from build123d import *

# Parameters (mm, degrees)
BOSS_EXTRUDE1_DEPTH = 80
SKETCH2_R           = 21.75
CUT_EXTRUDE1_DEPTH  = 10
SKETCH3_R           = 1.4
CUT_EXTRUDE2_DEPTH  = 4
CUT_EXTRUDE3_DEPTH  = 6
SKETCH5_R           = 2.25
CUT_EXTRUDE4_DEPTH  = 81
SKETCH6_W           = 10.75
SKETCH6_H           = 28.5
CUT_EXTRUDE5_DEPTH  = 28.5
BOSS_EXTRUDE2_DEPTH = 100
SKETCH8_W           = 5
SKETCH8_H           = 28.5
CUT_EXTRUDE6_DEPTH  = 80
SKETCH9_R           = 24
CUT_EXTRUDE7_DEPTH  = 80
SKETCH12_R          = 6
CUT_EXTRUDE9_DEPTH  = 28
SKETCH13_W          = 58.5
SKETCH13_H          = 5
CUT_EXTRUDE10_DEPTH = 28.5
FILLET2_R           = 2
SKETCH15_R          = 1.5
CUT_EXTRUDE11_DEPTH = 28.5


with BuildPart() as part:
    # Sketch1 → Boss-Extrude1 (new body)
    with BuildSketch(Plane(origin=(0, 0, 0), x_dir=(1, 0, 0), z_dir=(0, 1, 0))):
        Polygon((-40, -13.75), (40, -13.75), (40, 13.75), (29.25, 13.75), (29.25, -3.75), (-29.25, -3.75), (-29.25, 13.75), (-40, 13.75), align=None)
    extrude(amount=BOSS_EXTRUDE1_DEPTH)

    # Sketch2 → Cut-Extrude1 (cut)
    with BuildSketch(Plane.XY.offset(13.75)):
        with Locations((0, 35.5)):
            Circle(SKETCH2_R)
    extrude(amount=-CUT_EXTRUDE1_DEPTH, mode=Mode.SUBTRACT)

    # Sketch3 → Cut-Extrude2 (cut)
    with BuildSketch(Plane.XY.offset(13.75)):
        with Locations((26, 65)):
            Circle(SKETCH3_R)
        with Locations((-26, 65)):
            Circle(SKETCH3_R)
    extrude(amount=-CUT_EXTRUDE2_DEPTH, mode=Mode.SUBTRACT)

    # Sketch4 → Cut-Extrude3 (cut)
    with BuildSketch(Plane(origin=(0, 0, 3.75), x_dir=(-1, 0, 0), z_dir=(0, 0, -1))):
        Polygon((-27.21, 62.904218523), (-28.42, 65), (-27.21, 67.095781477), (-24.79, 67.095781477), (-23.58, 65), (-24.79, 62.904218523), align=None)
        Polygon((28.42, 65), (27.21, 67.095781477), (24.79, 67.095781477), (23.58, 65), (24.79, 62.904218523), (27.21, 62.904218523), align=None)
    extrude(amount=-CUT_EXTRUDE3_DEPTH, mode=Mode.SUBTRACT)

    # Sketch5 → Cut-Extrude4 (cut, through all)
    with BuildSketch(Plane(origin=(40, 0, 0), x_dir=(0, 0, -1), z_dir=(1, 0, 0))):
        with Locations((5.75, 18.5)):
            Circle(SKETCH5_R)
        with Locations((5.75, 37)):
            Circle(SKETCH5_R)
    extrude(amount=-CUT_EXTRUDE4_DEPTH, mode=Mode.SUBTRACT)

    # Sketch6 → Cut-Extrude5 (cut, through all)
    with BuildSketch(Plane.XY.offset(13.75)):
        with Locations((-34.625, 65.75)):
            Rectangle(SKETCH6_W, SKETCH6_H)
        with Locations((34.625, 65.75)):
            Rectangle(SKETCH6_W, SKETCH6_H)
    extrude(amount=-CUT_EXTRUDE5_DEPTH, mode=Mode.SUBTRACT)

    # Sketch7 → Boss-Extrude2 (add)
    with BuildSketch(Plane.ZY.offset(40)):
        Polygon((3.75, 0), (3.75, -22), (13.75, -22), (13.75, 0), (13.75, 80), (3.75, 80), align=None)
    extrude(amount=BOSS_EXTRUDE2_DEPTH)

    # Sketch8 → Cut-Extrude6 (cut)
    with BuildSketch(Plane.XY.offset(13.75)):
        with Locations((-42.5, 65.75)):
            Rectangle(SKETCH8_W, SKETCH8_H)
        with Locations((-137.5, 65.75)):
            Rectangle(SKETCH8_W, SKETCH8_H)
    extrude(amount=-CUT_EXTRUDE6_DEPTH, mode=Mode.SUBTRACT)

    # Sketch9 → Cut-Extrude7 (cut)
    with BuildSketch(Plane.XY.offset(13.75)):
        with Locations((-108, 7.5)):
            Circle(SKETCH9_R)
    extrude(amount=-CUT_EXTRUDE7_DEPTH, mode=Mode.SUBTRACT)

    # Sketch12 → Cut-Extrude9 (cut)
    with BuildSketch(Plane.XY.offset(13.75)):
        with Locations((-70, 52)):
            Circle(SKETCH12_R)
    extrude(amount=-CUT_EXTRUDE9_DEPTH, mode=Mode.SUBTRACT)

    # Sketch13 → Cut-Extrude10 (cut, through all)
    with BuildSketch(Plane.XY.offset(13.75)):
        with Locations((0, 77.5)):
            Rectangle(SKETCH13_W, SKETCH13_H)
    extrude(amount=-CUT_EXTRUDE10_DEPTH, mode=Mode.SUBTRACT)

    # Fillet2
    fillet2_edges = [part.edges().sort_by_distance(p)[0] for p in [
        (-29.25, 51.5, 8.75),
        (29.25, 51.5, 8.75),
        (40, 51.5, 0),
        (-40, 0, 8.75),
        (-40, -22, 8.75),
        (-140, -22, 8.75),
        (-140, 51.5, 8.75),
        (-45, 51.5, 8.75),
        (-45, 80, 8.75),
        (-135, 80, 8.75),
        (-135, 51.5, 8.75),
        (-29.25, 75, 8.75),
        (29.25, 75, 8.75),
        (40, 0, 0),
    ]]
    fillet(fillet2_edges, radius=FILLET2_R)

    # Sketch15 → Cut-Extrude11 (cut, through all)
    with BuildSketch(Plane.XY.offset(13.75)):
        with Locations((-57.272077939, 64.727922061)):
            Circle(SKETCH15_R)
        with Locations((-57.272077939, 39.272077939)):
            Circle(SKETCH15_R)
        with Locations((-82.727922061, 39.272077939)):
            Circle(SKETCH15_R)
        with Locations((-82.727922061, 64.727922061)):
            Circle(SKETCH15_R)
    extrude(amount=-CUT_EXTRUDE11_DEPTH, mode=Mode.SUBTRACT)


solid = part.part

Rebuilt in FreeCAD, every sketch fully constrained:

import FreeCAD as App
import Part
import Sketcher
from FreeCAD import Vector
Q = App.Units.Quantity


def edges_at(feature, points):
    """Names of the edges that pass closest to the given points."""
    edges = feature.Shape.Edges
    near = lambda p: min(range(len(edges)), key=lambda i: edges[i].distToShape(Part.Vertex(*p))[0])
    return sorted({f"Edge{near(p) + 1}" for p in points})

doc = App.newDocument("Part")
body = doc.addObject("PartDesign::Body", "Body")

# Sketch on XZ plane
sketch1 = doc.addObject("Sketcher::SketchObject", "Sketch")
body.addObject(sketch1)
sketch1.AttachmentSupport = (doc.XZ_Plane, [""])
sketch1.MapMode = "FlatFace"
sketch1.addGeometry(Part.LineSegment(Vector(-40, 13.75, 0), Vector(40, 13.75, 0)), False)
sketch1.addGeometry(Part.LineSegment(Vector(40, 13.75, 0), Vector(40, -13.75, 0)), False)
sketch1.addGeometry(Part.LineSegment(Vector(40, -13.75, 0), Vector(29.25, -13.75, 0)), False)
sketch1.addGeometry(Part.LineSegment(Vector(29.25, -13.75, 0), Vector(29.25, 3.75, 0)), False)
sketch1.addGeometry(Part.LineSegment(Vector(29.25, 3.75, 0), Vector(-29.25, 3.75, 0)), False)
sketch1.addGeometry(Part.LineSegment(Vector(-29.25, 3.75, 0), Vector(-29.25, -13.75, 0)), False)
sketch1.addGeometry(Part.LineSegment(Vector(-29.25, -13.75, 0), Vector(-40, -13.75, 0)), False)
sketch1.addGeometry(Part.LineSegment(Vector(-40, -13.75, 0), Vector(-40, 13.75, 0)), False)
sketch1.addConstraint(Sketcher.Constraint("Coincident", 0, 2, 1, 1))
sketch1.addConstraint(Sketcher.Constraint("Coincident", 1, 2, 2, 1))
sketch1.addConstraint(Sketcher.Constraint("Coincident", 2, 2, 3, 1))
sketch1.addConstraint(Sketcher.Constraint("Coincident", 3, 2, 4, 1))
sketch1.addConstraint(Sketcher.Constraint("Coincident", 4, 2, 5, 1))
sketch1.addConstraint(Sketcher.Constraint("Coincident", 5, 2, 6, 1))
sketch1.addConstraint(Sketcher.Constraint("Coincident", 6, 2, 7, 1))
sketch1.addConstraint(Sketcher.Constraint("Coincident", 7, 2, 0, 1))
sketch1.addConstraint(Sketcher.Constraint("Horizontal", 0))
sketch1.addConstraint(Sketcher.Constraint("Vertical", 1))
sketch1.addConstraint(Sketcher.Constraint("Horizontal", 2))
sketch1.addConstraint(Sketcher.Constraint("Vertical", 3))
sketch1.addConstraint(Sketcher.Constraint("Horizontal", 4))
sketch1.addConstraint(Sketcher.Constraint("Vertical", 5))
sketch1.addConstraint(Sketcher.Constraint("Horizontal", 6))
sketch1.addConstraint(Sketcher.Constraint("Vertical", 7))
sketch1.addConstraint(Sketcher.Constraint("Symmetric", 0, 2, 6, 2, -1, 1))
sketch1.addConstraint(Sketcher.Constraint("Symmetric", 2, 2, 5, 2, -2))
sketch1.addConstraint(Sketcher.Constraint("DistanceX", 0, 1, 0, 2, Q("80 mm")))
sketch1.addConstraint(Sketcher.Constraint("DistanceX", 4, 2, 4, 1, Q("58.5 mm")))
sketch1.addConstraint(Sketcher.Constraint("DistanceY", 1, 2, 1, 1, Q("27.5 mm")))
sketch1.addConstraint(Sketcher.Constraint("DistanceY", 3, 1, 3, 2, Q("17.5 mm")))
pad1 = doc.addObject("PartDesign::Pad", "Pad")
body.addObject(pad1)
pad1.Profile = sketch1
pad1.Length = 80
pad1.Reversed = True

# Sketch on XY plane
sketch2 = doc.addObject("Sketcher::SketchObject", "Sketch001")
body.addObject(sketch2)
sketch2.AttachmentSupport = (doc.XY_Plane, [""])
sketch2.MapMode = "FlatFace"
sketch2.AttachmentOffset = App.Placement(Vector(0, 0, 13.75), App.Rotation())
sketch2.addGeometry(Part.Circle(Vector(0, 35.5, 0), Vector(0, 0, 1), 21.75), False)
sketch2.addConstraint(Sketcher.Constraint("PointOnObject", 0, 3, -2))
sketch2.addConstraint(Sketcher.Constraint("Diameter", 0, Q("43.5 mm")))
sketch2.addConstraint(Sketcher.Constraint("DistanceY", -1, 1, 0, 3, Q("35.5 mm")))
pocket1 = doc.addObject("PartDesign::Pocket", "Pocket")
body.addObject(pocket1)
pocket1.Profile = sketch2
pocket1.Length = 10

# Sketch on XY plane
sketch3 = doc.addObject("Sketcher::SketchObject", "Sketch002")
body.addObject(sketch3)
sketch3.AttachmentSupport = (doc.XY_Plane, [""])
sketch3.MapMode = "FlatFace"
sketch3.AttachmentOffset = App.Placement(Vector(0, 0, 13.75), App.Rotation())
sketch3.addGeometry(Part.Circle(Vector(26, 65, 0), Vector(0, 0, 1), 1.4), False)
sketch3.addGeometry(Part.Circle(Vector(-26, 65, 0), Vector(0, 0, 1), 1.4), False)
sketch3.addConstraint(Sketcher.Constraint("Equal", 0, 1))
sketch3.addConstraint(Sketcher.Constraint("Symmetric", 0, 3, 1, 3, -2))
sketch3.addConstraint(Sketcher.Constraint("Diameter", 0, Q("2.8 mm")))
sketch3.addConstraint(Sketcher.Constraint("DistanceX", -1, 1, 0, 3, Q("26 mm")))
sketch3.addConstraint(Sketcher.Constraint("DistanceY", -1, 1, 0, 3, Q("65 mm")))
pocket2 = doc.addObject("PartDesign::Pocket", "Pocket001")
body.addObject(pocket2)
pocket2.Profile = sketch3
pocket2.Length = 4

# Sketch on XY plane
sketch4 = doc.addObject("Sketcher::SketchObject", "Sketch003")
body.addObject(sketch4)
sketch4.AttachmentSupport = (doc.XY_Plane, [""])
sketch4.MapMode = "FlatFace"
sketch4.AttachmentOffset = App.Placement(Vector(0, 0, 3.75), App.Rotation())
sketch4.addGeometry(Part.LineSegment(Vector(28.42, 65, 0), Vector(27.21, 62.904219, 0)), False)
sketch4.addGeometry(Part.LineSegment(Vector(27.21, 62.904219, 0), Vector(24.79, 62.904219, 0)), False)
sketch4.addGeometry(Part.LineSegment(Vector(24.79, 62.904219, 0), Vector(23.58, 65, 0)), False)
sketch4.addGeometry(Part.LineSegment(Vector(23.58, 65, 0), Vector(24.79, 67.095781, 0)), False)
sketch4.addGeometry(Part.LineSegment(Vector(24.79, 67.095781, 0), Vector(27.21, 67.095781, 0)), False)
sketch4.addGeometry(Part.LineSegment(Vector(27.21, 67.095781, 0), Vector(28.42, 65, 0)), False)
sketch4.addGeometry(Part.LineSegment(Vector(-28.42, 65, 0), Vector(-27.21, 67.095781, 0)), False)
sketch4.addGeometry(Part.LineSegment(Vector(-27.21, 67.095781, 0), Vector(-24.79, 67.095781, 0)), False)
sketch4.addGeometry(Part.LineSegment(Vector(-24.79, 67.095781, 0), Vector(-23.58, 65, 0)), False)
sketch4.addGeometry(Part.LineSegment(Vector(-23.58, 65, 0), Vector(-24.79, 62.904219, 0)), False)
sketch4.addGeometry(Part.LineSegment(Vector(-24.79, 62.904219, 0), Vector(-27.21, 62.904219, 0)), False)
sketch4.addGeometry(Part.LineSegment(Vector(-27.21, 62.904219, 0), Vector(-28.42, 65, 0)), False)
sketch4.addConstraint(Sketcher.Constraint("Coincident", 0, 2, 1, 1))
sketch4.addConstraint(Sketcher.Constraint("Coincident", 1, 2, 2, 1))
sketch4.addConstraint(Sketcher.Constraint("Coincident", 2, 2, 3, 1))
sketch4.addConstraint(Sketcher.Constraint("Coincident", 3, 2, 4, 1))
sketch4.addConstraint(Sketcher.Constraint("Coincident", 4, 2, 5, 1))
sketch4.addConstraint(Sketcher.Constraint("Coincident", 5, 2, 0, 1))
sketch4.addConstraint(Sketcher.Constraint("Coincident", 6, 2, 7, 1))
sketch4.addConstraint(Sketcher.Constraint("Coincident", 7, 2, 8, 1))
sketch4.addConstraint(Sketcher.Constraint("Coincident", 8, 2, 9, 1))
sketch4.addConstraint(Sketcher.Constraint("Coincident", 9, 2, 10, 1))
sketch4.addConstraint(Sketcher.Constraint("Coincident", 10, 2, 11, 1))
sketch4.addConstraint(Sketcher.Constraint("Coincident", 11, 2, 6, 1))
sketch4.addConstraint(Sketcher.Constraint("Horizontal", 1))
sketch4.addConstraint(Sketcher.Constraint("Horizontal", 4))
sketch4.addConstraint(Sketcher.Constraint("Horizontal", 7))
sketch4.addConstraint(Sketcher.Constraint("Horizontal", 10))
sketch4.addConstraint(Sketcher.Constraint("Symmetric", 4, 2, 6, 2, -2))
sketch4.addConstraint(Sketcher.Constraint("Symmetric", 2, 2, 8, 2, -2))
sketch4.addConstraint(Sketcher.Constraint("Symmetric", 1, 2, 9, 2, -2))
sketch4.addConstraint(Sketcher.Constraint("Symmetric", 5, 2, 11, 2, -2))
sketch4.addConstraint(Sketcher.Constraint("Parallel", 0, 3))
sketch4.addConstraint(Sketcher.Constraint("Parallel", 2, 5))
sketch4.addConstraint(Sketcher.Constraint("Parallel", 3, 6))
sketch4.addConstraint(Sketcher.Constraint("Parallel", 5, 8))
sketch4.addConstraint(Sketcher.Constraint("Parallel", 8, 11))
sketch4.addConstraint(Sketcher.Constraint("Horizontal", 2, 2, 5, 2))
sketch4.addConstraint(Sketcher.Constraint("Vertical", 1, 2, 3, 2))
sketch4.addConstraint(Sketcher.Constraint("Angle", 0, Q("-120 deg")))
sketch4.addConstraint(Sketcher.Constraint("DistanceY", -1, 1, 2, 2, Q("65 mm")))
sketch4.addConstraint(Sketcher.Constraint("DistanceX", 6, 2, 3, 2, Q("52 mm")))
sketch4.addConstraint(Sketcher.Constraint("DistanceX", 1, 2, 1, 1, Q("2.42 mm")))
sketch4.addConstraint(Sketcher.Constraint("Distance", 0, Q("2.42 mm")))
pocket3 = doc.addObject("PartDesign::Pocket", "Pocket002")
body.addObject(pocket3)
pocket3.Profile = sketch4
pocket3.Length = 6
pocket3.Reversed = True

# Sketch on YZ plane
sketch5 = doc.addObject("Sketcher::SketchObject", "Sketch004")
body.addObject(sketch5)
sketch5.AttachmentSupport = (doc.YZ_Plane, [""])
sketch5.MapMode = "FlatFace"
sketch5.AttachmentOffset = App.Placement(Vector(0, 0, 40), App.Rotation())
sketch5.addGeometry(Part.Circle(Vector(18.5, -5.75, 0), Vector(0, 0, 1), 2.25), False)
sketch5.addGeometry(Part.Circle(Vector(37, -5.75, 0), Vector(0, 0, 1), 2.25), False)
sketch5.addConstraint(Sketcher.Constraint("Equal", 0, 1))
sketch5.addConstraint(Sketcher.Constraint("Horizontal", 0, 3, 1, 3))
sketch5.addConstraint(Sketcher.Constraint("Diameter", 0, Q("4.5 mm")))
sketch5.addConstraint(Sketcher.Constraint("DistanceX", -1, 1, 1, 3, Q("37 mm")))
sketch5.addConstraint(Sketcher.Constraint("DistanceX", -1, 1, 0, 3, Q("18.5 mm")))
sketch5.addConstraint(Sketcher.Constraint("DistanceY", 0, 3, -1, 1, Q("5.75 mm")))
pocket4 = doc.addObject("PartDesign::Pocket", "Pocket003")
body.addObject(pocket4)
pocket4.Profile = sketch5
pocket4.Type = "ThroughAll"

# Sketch on XY plane
sketch6 = doc.addObject("Sketcher::SketchObject", "Sketch005")
body.addObject(sketch6)
sketch6.AttachmentSupport = (doc.XY_Plane, [""])
sketch6.MapMode = "FlatFace"
sketch6.AttachmentOffset = App.Placement(Vector(0, 0, 13.75), App.Rotation())
sketch6.addGeometry(Part.LineSegment(Vector(-40, 80, 0), Vector(-40, 51.5, 0)), False)
sketch6.addGeometry(Part.LineSegment(Vector(-40, 51.5, 0), Vector(-29.25, 51.5, 0)), False)
sketch6.addGeometry(Part.LineSegment(Vector(-29.25, 51.5, 0), Vector(-29.25, 80, 0)), False)
sketch6.addGeometry(Part.LineSegment(Vector(-29.25, 80, 0), Vector(-40, 80, 0)), False)
sketch6.addGeometry(Part.LineSegment(Vector(29.25, 80, 0), Vector(29.25, 51.5, 0)), False)
sketch6.addGeometry(Part.LineSegment(Vector(29.25, 51.5, 0), Vector(40, 51.5, 0)), False)
sketch6.addGeometry(Part.LineSegment(Vector(40, 51.5, 0), Vector(40, 80, 0)), False)
sketch6.addGeometry(Part.LineSegment(Vector(40, 80, 0), Vector(29.25, 80, 0)), False)
sketch6.addConstraint(Sketcher.Constraint("Coincident", 0, 2, 1, 1))
sketch6.addConstraint(Sketcher.Constraint("Coincident", 1, 2, 2, 1))
sketch6.addConstraint(Sketcher.Constraint("Coincident", 2, 2, 3, 1))
sketch6.addConstraint(Sketcher.Constraint("Coincident", 3, 2, 0, 1))
sketch6.addConstraint(Sketcher.Constraint("Coincident", 4, 2, 5, 1))
sketch6.addConstraint(Sketcher.Constraint("Coincident", 5, 2, 6, 1))
sketch6.addConstraint(Sketcher.Constraint("Coincident", 6, 2, 7, 1))
sketch6.addConstraint(Sketcher.Constraint("Coincident", 7, 2, 4, 1))
sketch6.addConstraint(Sketcher.Constraint("Vertical", 0))
sketch6.addConstraint(Sketcher.Constraint("Horizontal", 1))
sketch6.addConstraint(Sketcher.Constraint("Vertical", 2))
sketch6.addConstraint(Sketcher.Constraint("Horizontal", 3))
sketch6.addConstraint(Sketcher.Constraint("Vertical", 4))
sketch6.addConstraint(Sketcher.Constraint("Horizontal", 5))
sketch6.addConstraint(Sketcher.Constraint("Vertical", 6))
sketch6.addConstraint(Sketcher.Constraint("Horizontal", 7))
sketch6.addConstraint(Sketcher.Constraint("Symmetric", 1, 2, 4, 2, -2))
sketch6.addConstraint(Sketcher.Constraint("Symmetric", 3, 2, 6, 2, -2))
sketch6.addConstraint(Sketcher.Constraint("DistanceY", 0, 2, 0, 1, Q("28.5 mm")))
sketch6.addConstraint(Sketcher.Constraint("DistanceX", 0, 2, -1, 1, Q("40 mm")))
sketch6.addConstraint(Sketcher.Constraint("DistanceY", -1, 1, 2, 2, Q("80 mm")))
sketch6.addConstraint(Sketcher.Constraint("DistanceX", 1, 1, 1, 2, Q("10.75 mm")))
pocket5 = doc.addObject("PartDesign::Pocket", "Pocket004")
body.addObject(pocket5)
pocket5.Profile = sketch6
pocket5.Type = "ThroughAll"

# Sketch on YZ plane
sketch7 = doc.addObject("Sketcher::SketchObject", "Sketch006")
body.addObject(sketch7)
sketch7.AttachmentSupport = (doc.YZ_Plane, [""])
sketch7.MapMode = "FlatFace"
sketch7.AttachmentOffset = App.Placement(Vector(0, 0, -40), App.Rotation())
sketch7.addGeometry(Part.LineSegment(Vector(-22, 3.75, 0), Vector(-22, 13.75, 0)), False)
sketch7.addGeometry(Part.LineSegment(Vector(-22, 13.75, 0), Vector(80, 13.75, 0)), False)
sketch7.addGeometry(Part.LineSegment(Vector(80, 13.75, 0), Vector(80, 3.75, 0)), False)
sketch7.addGeometry(Part.LineSegment(Vector(80, 3.75, 0), Vector(-22, 3.75, 0)), False)
sketch7.addConstraint(Sketcher.Constraint("Coincident", 0, 2, 1, 1))
sketch7.addConstraint(Sketcher.Constraint("Coincident", 1, 2, 2, 1))
sketch7.addConstraint(Sketcher.Constraint("Coincident", 2, 2, 3, 1))
sketch7.addConstraint(Sketcher.Constraint("Coincident", 3, 2, 0, 1))
sketch7.addConstraint(Sketcher.Constraint("Vertical", 0))
sketch7.addConstraint(Sketcher.Constraint("Horizontal", 1))
sketch7.addConstraint(Sketcher.Constraint("Vertical", 2))
sketch7.addConstraint(Sketcher.Constraint("Horizontal", 3))
sketch7.addConstraint(Sketcher.Constraint("DistanceX", 1, 1, 1, 2, Q("102 mm")))
sketch7.addConstraint(Sketcher.Constraint("DistanceY", 0, 1, 0, 2, Q("10 mm")))
sketch7.addConstraint(Sketcher.Constraint("DistanceX", 0, 2, -1, 1, Q("22 mm")))
sketch7.addConstraint(Sketcher.Constraint("DistanceY", -1, 1, 0, 2, Q("13.75 mm")))
pad2 = doc.addObject("PartDesign::Pad", "Pad001")
body.addObject(pad2)
pad2.Profile = sketch7
pad2.Length = 100
pad2.Reversed = True

# Sketch on XY plane
sketch8 = doc.addObject("Sketcher::SketchObject", "Sketch007")
body.addObject(sketch8)
sketch8.AttachmentSupport = (doc.XY_Plane, [""])
sketch8.MapMode = "FlatFace"
sketch8.AttachmentOffset = App.Placement(Vector(0, 0, 13.75), App.Rotation())
sketch8.addGeometry(Part.LineSegment(Vector(-45, 80, 0), Vector(-45, 51.5, 0)), False)
sketch8.addGeometry(Part.LineSegment(Vector(-45, 51.5, 0), Vector(-40, 51.5, 0)), False)
sketch8.addGeometry(Part.LineSegment(Vector(-40, 51.5, 0), Vector(-40, 80, 0)), False)
sketch8.addGeometry(Part.LineSegment(Vector(-40, 80, 0), Vector(-45, 80, 0)), False)
sketch8.addGeometry(Part.LineSegment(Vector(-140, 80, 0), Vector(-140, 51.5, 0)), False)
sketch8.addGeometry(Part.LineSegment(Vector(-140, 51.5, 0), Vector(-135, 51.5, 0)), False)
sketch8.addGeometry(Part.LineSegment(Vector(-135, 51.5, 0), Vector(-135, 80, 0)), False)
sketch8.addGeometry(Part.LineSegment(Vector(-135, 80, 0), Vector(-140, 80, 0)), False)
sketch8.addConstraint(Sketcher.Constraint("Coincident", 0, 2, 1, 1))
sketch8.addConstraint(Sketcher.Constraint("Coincident", 1, 2, 2, 1))
sketch8.addConstraint(Sketcher.Constraint("Coincident", 2, 2, 3, 1))
sketch8.addConstraint(Sketcher.Constraint("Coincident", 3, 2, 0, 1))
sketch8.addConstraint(Sketcher.Constraint("Coincident", 4, 2, 5, 1))
sketch8.addConstraint(Sketcher.Constraint("Coincident", 5, 2, 6, 1))
sketch8.addConstraint(Sketcher.Constraint("Coincident", 6, 2, 7, 1))
sketch8.addConstraint(Sketcher.Constraint("Coincident", 7, 2, 4, 1))
sketch8.addConstraint(Sketcher.Constraint("Vertical", 0))
sketch8.addConstraint(Sketcher.Constraint("Horizontal", 1))
sketch8.addConstraint(Sketcher.Constraint("Vertical", 2))
sketch8.addConstraint(Sketcher.Constraint("Horizontal", 3))
sketch8.addConstraint(Sketcher.Constraint("Vertical", 4))
sketch8.addConstraint(Sketcher.Constraint("Horizontal", 5))
sketch8.addConstraint(Sketcher.Constraint("Vertical", 6))
sketch8.addConstraint(Sketcher.Constraint("Horizontal", 7))
sketch8.addConstraint(Sketcher.Constraint("Horizontal", 1, 2, 4, 2))
sketch8.addConstraint(Sketcher.Constraint("Horizontal", 3, 2, 6, 2))
sketch8.addConstraint(Sketcher.Constraint("Equal", 3, 5))
sketch8.addConstraint(Sketcher.Constraint("DistanceX", 1, 1, 1, 2, Q("5 mm")))
sketch8.addConstraint(Sketcher.Constraint("DistanceY", 0, 2, 0, 1, Q("28.5 mm")))
sketch8.addConstraint(Sketcher.Constraint("DistanceX", 0, 2, -1, 1, Q("45 mm")))
sketch8.addConstraint(Sketcher.Constraint("DistanceY", -1, 1, 2, 2, Q("80 mm")))
sketch8.addConstraint(Sketcher.Constraint("DistanceX", 4, 2, -1, 1, Q("140 mm")))
pocket6 = doc.addObject("PartDesign::Pocket", "Pocket005")
body.addObject(pocket6)
pocket6.Profile = sketch8
pocket6.Length = 80

# Sketch on XY plane
sketch9 = doc.addObject("Sketcher::SketchObject", "Sketch008")
body.addObject(sketch9)
sketch9.AttachmentSupport = (doc.XY_Plane, [""])
sketch9.MapMode = "FlatFace"
sketch9.AttachmentOffset = App.Placement(Vector(0, 0, 13.75), App.Rotation())
sketch9.addGeometry(Part.Circle(Vector(-108, 7.5, 0), Vector(0, 0, 1), 24), False)
sketch9.addConstraint(Sketcher.Constraint("Diameter", 0, Q("48 mm")))
sketch9.addConstraint(Sketcher.Constraint("DistanceX", 0, 3, -1, 1, Q("108 mm")))
sketch9.addConstraint(Sketcher.Constraint("DistanceY", -1, 1, 0, 3, Q("7.5 mm")))
pocket7 = doc.addObject("PartDesign::Pocket", "Pocket006")
body.addObject(pocket7)
pocket7.Profile = sketch9
pocket7.Length = 80

# Sketch on XY plane
sketch10 = doc.addObject("Sketcher::SketchObject", "Sketch009")
body.addObject(sketch10)
sketch10.AttachmentSupport = (doc.XY_Plane, [""])
sketch10.MapMode = "FlatFace"
sketch10.AttachmentOffset = App.Placement(Vector(0, 0, 13.75), App.Rotation())
sketch10.addGeometry(Part.Circle(Vector(-70, 52, 0), Vector(0, 0, 1), 6), False)
sketch10.addConstraint(Sketcher.Constraint("Diameter", 0, Q("12 mm")))
sketch10.addConstraint(Sketcher.Constraint("DistanceX", 0, 3, -1, 1, Q("70 mm")))
sketch10.addConstraint(Sketcher.Constraint("DistanceY", -1, 1, 0, 3, Q("52 mm")))
pocket8 = doc.addObject("PartDesign::Pocket", "Pocket007")
body.addObject(pocket8)
pocket8.Profile = sketch10
pocket8.Length = 28

# Sketch on XY plane
sketch11 = doc.addObject("Sketcher::SketchObject", "Sketch010")
body.addObject(sketch11)
sketch11.AttachmentSupport = (doc.XY_Plane, [""])
sketch11.MapMode = "FlatFace"
sketch11.AttachmentOffset = App.Placement(Vector(0, 0, 13.75), App.Rotation())
sketch11.addGeometry(Part.LineSegment(Vector(-29.25, 80, 0), Vector(-29.25, 75, 0)), False)
sketch11.addGeometry(Part.LineSegment(Vector(-29.25, 75, 0), Vector(29.25, 75, 0)), False)
sketch11.addGeometry(Part.LineSegment(Vector(29.25, 75, 0), Vector(29.25, 80, 0)), False)
sketch11.addGeometry(Part.LineSegment(Vector(29.25, 80, 0), Vector(-29.25, 80, 0)), False)
sketch11.addConstraint(Sketcher.Constraint("Coincident", 0, 2, 1, 1))
sketch11.addConstraint(Sketcher.Constraint("Coincident", 1, 2, 2, 1))
sketch11.addConstraint(Sketcher.Constraint("Coincident", 2, 2, 3, 1))
sketch11.addConstraint(Sketcher.Constraint("Coincident", 3, 2, 0, 1))
sketch11.addConstraint(Sketcher.Constraint("Vertical", 0))
sketch11.addConstraint(Sketcher.Constraint("Horizontal", 1))
sketch11.addConstraint(Sketcher.Constraint("Vertical", 2))
sketch11.addConstraint(Sketcher.Constraint("Horizontal", 3))
sketch11.addConstraint(Sketcher.Constraint("DistanceY", 0, 2, 0, 1, Q("5 mm")))
sketch11.addConstraint(Sketcher.Constraint("DistanceX", 1, 1, 1, 2, Q("58.5 mm")))
sketch11.addConstraint(Sketcher.Constraint("DistanceY", -1, 1, 0, 2, Q("75 mm")))
sketch11.addConstraint(Sketcher.Constraint("DistanceX", 0, 2, -1, 1, Q("29.25 mm")))
pocket9 = doc.addObject("PartDesign::Pocket", "Pocket008")
body.addObject(pocket9)
pocket9.Profile = sketch11
pocket9.Type = "ThroughAll"
doc.recompute()

fillet = doc.addObject("PartDesign::Fillet", "Fillet")
body.addObject(fillet)
fillet.Base = (pocket9, edges_at(pocket9, [
    (-29.25, 51.5, 8.75),
    (29.25, 51.5, 8.75),
    (40, 51.5, 0),
    (-40, 0, 8.75),
    (-40, -22, 8.75),
    (-140, -22, 8.75),
    (-140, 51.5, 8.75),
    (-45, 51.5, 8.75),
    (-45, 80, 8.75),
    (-135, 80, 8.75),
    (-135, 51.5, 8.75),
    (-29.25, 75, 8.75),
    (29.25, 75, 8.75),
    (40, 0, 0),
]))
fillet.Radius = 2

# Sketch on XY plane
sketch12 = doc.addObject("Sketcher::SketchObject", "Sketch011")
body.addObject(sketch12)
sketch12.AttachmentSupport = (doc.XY_Plane, [""])
sketch12.MapMode = "FlatFace"
sketch12.AttachmentOffset = App.Placement(Vector(0, 0, 13.75), App.Rotation())
sketch12.addGeometry(Part.Circle(Vector(-57.272078, 64.727922, 0), Vector(0, 0, 1), 1.5), False)
sketch12.addGeometry(Part.Circle(Vector(-57.272078, 39.272078, 0), Vector(0, 0, 1), 1.5), False)
sketch12.addGeometry(Part.Circle(Vector(-82.727922, 39.272078, 0), Vector(0, 0, 1), 1.5), False)
sketch12.addGeometry(Part.Circle(Vector(-82.727922, 64.727922, 0), Vector(0, 0, 1), 1.5), False)
sketch12.addConstraint(Sketcher.Constraint("Equal", 0, 1))
sketch12.addConstraint(Sketcher.Constraint("Equal", 1, 2))
sketch12.addConstraint(Sketcher.Constraint("Equal", 2, 3))
sketch12.addConstraint(Sketcher.Constraint("Horizontal", 1, 3, 2, 3))
sketch12.addConstraint(Sketcher.Constraint("Horizontal", 0, 3, 3, 3))
sketch12.addConstraint(Sketcher.Constraint("Vertical", 0, 3, 1, 3))
sketch12.addConstraint(Sketcher.Constraint("Vertical", 2, 3, 3, 3))
sketch12.addConstraint(Sketcher.Constraint("Diameter", 0, Q("3 mm")))
sketch12.addConstraint(Sketcher.Constraint("DistanceX", 0, 3, -1, 1, Q("57.272078 mm")))
sketch12.addConstraint(Sketcher.Constraint("DistanceY", -1, 1, 0, 3, Q("64.727922 mm")))
sketch12.addConstraint(Sketcher.Constraint("DistanceY", -1, 1, 1, 3, Q("39.272078 mm")))
sketch12.addConstraint(Sketcher.Constraint("DistanceX", 2, 3, -1, 1, Q("82.727922 mm")))
pocket10 = doc.addObject("PartDesign::Pocket", "Pocket009")
body.addObject(pocket10)
pocket10.Profile = sketch12
pocket10.Type = "ThroughAll"

doc.recompute()
